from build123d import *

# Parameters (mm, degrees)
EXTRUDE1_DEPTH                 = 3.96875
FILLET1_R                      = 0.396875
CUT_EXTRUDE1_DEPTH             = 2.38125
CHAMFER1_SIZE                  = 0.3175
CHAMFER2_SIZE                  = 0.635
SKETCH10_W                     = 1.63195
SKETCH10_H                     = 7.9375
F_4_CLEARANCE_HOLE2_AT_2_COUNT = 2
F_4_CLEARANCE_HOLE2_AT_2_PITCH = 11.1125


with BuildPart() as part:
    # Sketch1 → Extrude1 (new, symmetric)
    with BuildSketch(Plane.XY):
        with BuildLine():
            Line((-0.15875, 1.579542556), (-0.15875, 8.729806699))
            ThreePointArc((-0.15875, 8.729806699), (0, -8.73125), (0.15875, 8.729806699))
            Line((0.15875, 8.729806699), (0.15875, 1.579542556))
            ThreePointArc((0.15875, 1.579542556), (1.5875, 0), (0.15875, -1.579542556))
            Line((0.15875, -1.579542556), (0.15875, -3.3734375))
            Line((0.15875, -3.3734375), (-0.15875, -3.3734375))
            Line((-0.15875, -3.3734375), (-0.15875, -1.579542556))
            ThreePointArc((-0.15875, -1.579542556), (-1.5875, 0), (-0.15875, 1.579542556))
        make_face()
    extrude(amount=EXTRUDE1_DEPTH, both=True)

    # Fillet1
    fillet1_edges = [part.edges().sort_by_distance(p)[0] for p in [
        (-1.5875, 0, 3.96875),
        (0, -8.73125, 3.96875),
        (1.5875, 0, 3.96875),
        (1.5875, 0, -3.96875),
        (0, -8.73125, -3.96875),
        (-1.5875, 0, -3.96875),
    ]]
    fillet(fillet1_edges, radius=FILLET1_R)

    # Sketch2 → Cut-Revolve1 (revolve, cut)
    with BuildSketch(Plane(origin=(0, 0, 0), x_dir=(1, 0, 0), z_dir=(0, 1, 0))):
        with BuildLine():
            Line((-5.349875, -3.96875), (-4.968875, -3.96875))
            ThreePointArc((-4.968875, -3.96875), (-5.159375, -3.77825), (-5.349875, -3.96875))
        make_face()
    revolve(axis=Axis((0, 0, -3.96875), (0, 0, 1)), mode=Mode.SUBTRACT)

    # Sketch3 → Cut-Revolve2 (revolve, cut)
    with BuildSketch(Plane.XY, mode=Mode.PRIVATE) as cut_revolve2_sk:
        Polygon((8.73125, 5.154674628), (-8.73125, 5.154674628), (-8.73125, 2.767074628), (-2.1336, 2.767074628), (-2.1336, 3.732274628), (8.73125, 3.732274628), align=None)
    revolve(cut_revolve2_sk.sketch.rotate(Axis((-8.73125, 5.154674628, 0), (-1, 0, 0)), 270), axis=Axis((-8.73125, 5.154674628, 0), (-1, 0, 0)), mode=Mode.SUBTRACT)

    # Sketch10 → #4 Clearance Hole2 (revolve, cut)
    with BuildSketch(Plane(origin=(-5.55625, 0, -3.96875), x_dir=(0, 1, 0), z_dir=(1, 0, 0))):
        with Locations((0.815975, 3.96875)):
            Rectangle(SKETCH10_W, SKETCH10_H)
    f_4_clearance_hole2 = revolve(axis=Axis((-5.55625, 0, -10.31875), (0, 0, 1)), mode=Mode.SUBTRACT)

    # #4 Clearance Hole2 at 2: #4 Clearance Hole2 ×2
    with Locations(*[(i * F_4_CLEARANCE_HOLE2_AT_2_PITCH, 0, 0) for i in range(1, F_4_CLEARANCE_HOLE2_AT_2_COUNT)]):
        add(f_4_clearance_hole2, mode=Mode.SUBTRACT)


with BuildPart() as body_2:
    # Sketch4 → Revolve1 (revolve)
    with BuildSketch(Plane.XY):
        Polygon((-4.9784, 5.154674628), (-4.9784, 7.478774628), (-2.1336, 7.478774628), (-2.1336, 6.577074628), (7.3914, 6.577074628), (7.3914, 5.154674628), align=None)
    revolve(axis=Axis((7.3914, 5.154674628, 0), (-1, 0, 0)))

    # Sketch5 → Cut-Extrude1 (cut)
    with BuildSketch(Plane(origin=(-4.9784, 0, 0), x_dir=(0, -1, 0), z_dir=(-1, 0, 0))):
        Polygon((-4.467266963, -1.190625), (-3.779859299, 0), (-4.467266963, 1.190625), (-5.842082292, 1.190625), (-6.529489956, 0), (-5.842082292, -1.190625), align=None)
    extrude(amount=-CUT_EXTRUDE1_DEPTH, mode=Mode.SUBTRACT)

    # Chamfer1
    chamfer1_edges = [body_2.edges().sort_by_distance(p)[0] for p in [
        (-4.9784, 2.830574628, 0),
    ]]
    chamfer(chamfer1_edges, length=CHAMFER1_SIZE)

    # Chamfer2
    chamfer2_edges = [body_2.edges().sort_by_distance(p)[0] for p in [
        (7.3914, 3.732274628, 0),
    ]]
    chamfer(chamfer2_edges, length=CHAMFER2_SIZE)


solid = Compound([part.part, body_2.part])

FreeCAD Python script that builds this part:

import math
import FreeCAD as App
import Part
import Sketcher
from FreeCAD import Vector
Q = App.Units.Quantity


def edges_at(feature, points):
    """Names of the edges that pass closest to the given points."""
    edges = feature.Shape.Edges
    near = lambda p: min(range(len(edges)), key=lambda i: edges[i].distToShape(Part.Vertex(*p))[0])
    return sorted({f"Edge{near(p) + 1}" for p in points})

doc = App.newDocument("Part")
body = doc.addObject("PartDesign::Body", "Body")

sketch1 = body.newObject("Sketcher::SketchObject", "Sketch")
sketch1.AttachmentSupport = (doc.getObject("XY_Plane"), [""])
sketch1.MapMode = "FlatFace"
sketch1.addGeometry([
    Part.LineSegment(Vector(-0.15875, 1.579543, 0), Vector(-0.15875, 8.729807, 0)),
    Part.ArcOfCircle(Part.Circle(Vector(0, 0, 0), Vector(0, 0, 1), 8.73125), math.radians(91.041799), math.radians(448.958201)),
    Part.LineSegment(Vector(0.15875, 8.729807, 0), Vector(0.15875, 1.579543, 0)),
    Part.ArcOfCircle(Part.Circle(Vector(0, 0, 0), Vector(0, 0, 1), 1.5875), math.radians(-84.26083), math.radians(84.26083)),
    Part.LineSegment(Vector(0.15875, -1.579543, 0), Vector(0.15875, -3.373438, 0)),
    Part.LineSegment(Vector(0.15875, -3.373438, 0), Vector(-0.15875, -3.373438, 0)),
    Part.LineSegment(Vector(-0.15875, -3.373438, 0), Vector(-0.15875, -1.579543, 0)),
    Part.ArcOfCircle(Part.Circle(Vector(0, 0, 0), Vector(0, 0, 1), 1.5875), math.radians(95.73917), math.radians(264.26083)),
], False)
sketch1.addConstraint([
    Sketcher.Constraint("Coincident", 0, 2, 1, 1),
    Sketcher.Constraint("Coincident", 1, 2, 2, 1),
    Sketcher.Constraint("Coincident", 2, 2, 3, 2),
    Sketcher.Constraint("Coincident", 3, 1, 4, 1),
    Sketcher.Constraint("Coincident", 4, 2, 5, 1),
    Sketcher.Constraint("Coincident", 5, 2, 6, 1),
    Sketcher.Constraint("Coincident", 6, 2, 7, 2),
    Sketcher.Constraint("Coincident", 7, 1, 0, 1),
    Sketcher.Constraint("Vertical", 0),
    Sketcher.Constraint("Vertical", 2),
    Sketcher.Constraint("Vertical", 4),
    Sketcher.Constraint("Horizontal", 5),
    Sketcher.Constraint("Vertical", 6),
    Sketcher.Constraint("Coincident", 1, 3, -1, 1),
    Sketcher.Constraint("Coincident", 3, 3, -1, 1),
    Sketcher.Constraint("Coincident", 7, 3, -1, 1),
    Sketcher.Constraint("Equal", 3, 7),
    Sketcher.Constraint("Horizontal", 0, 2, 1, 2),
    Sketcher.Constraint("Horizontal", 3, 1, 6, 2),
    Sketcher.Constraint("Vertical", 2, 2, 3, 1),
    Sketcher.Constraint("Radius", 1, Q("0.34375 in")),
    Sketcher.Constraint("Radius", 3, Q("0.0625 in")),
    Sketcher.Constraint("DistanceX", 5, 2, 5, 1, Q("0.0125 in")),
    Sketcher.Constraint("DistanceY", 4, 2, 4, 1, Q("1.793895 mm")),
])
pad1 = body.newObject("PartDesign::Pad", "Pad")
pad1.Profile = sketch1
pad1.Length = Q("0.3125 in")
pad1.Midplane = True
doc.recompute()

fillet = body.newObject("PartDesign::Fillet", "Fillet")
fillet.Base = (pad1, edges_at(pad1, [
    (-1.587, 0, 3.969),
    (0, -8.731, 3.969),
    (1.587, 0, 3.969),
    (1.587, 0, -3.969),
    (0, -8.731, -3.969),
    (-1.587, 0, -3.969),
]))
fillet.Radius = Q("0.015625 in")

sketch2 = body.newObject("Sketcher::SketchObject", "Sketch001")
sketch2.AttachmentSupport = (doc.getObject("XZ_Plane"), [""])
sketch2.MapMode = "FlatFace"
sketch2.addGeometry([
    Part.LineSegment(Vector(-5.349875, 3.96875, 0), Vector(-4.968875, 3.96875, 0)),
    Part.ArcOfCircle(Part.Circle(Vector(-5.159375, 3.96875, 0), Vector(0, 0, 1), 0.1905), math.radians(180), math.radians(360)),
], False)
sketch2.addConstraint([
    Sketcher.Constraint("Coincident", 0, 1, 1, 1),
    Sketcher.Constraint("Coincident", 1, 2, 0, 2),
    Sketcher.Constraint("Horizontal", 0),
    Sketcher.Constraint("Horizontal", 1, 3, 0, 1),
    Sketcher.Constraint("Radius", 1, Q("0.0075 in")),
    Sketcher.Constraint("DistanceX", 1, 3, -1, 1, Q("0.203125 in")),
    Sketcher.Constraint("DistanceY", -1, 1, 1, 3, Q("0.15625 in")),
])
groove = body.newObject("PartDesign::Groove", "Groove")
groove.Profile = sketch2
groove.ReferenceAxis = (sketch2, ["V_Axis"])
groove.Angle = 360

sketch3 = body.newObject("Sketcher::SketchObject", "Sketch002")
sketch3.AttachmentSupport = (doc.getObject("XY_Plane"), [""])
sketch3.MapMode = "FlatFace"
sketch3.addGeometry([
    Part.LineSegment(Vector(8.73125, 5.154675, 0), Vector(-8.73125, 5.154675, 0)),
    Part.LineSegment(Vector(-8.73125, 5.154675, 0), Vector(-8.73125, 2.767075, 0)),
    Part.LineSegment(Vector(-8.73125, 2.767075, 0), Vector(-2.1336, 2.767075, 0)),
    Part.LineSegment(Vector(-2.1336, 2.767075, 0), Vector(-2.1336, 3.732275, 0)),
    Part.LineSegment(Vector(-2.1336, 3.732275, 0), Vector(8.73125, 3.732275, 0)),
    Part.LineSegment(Vector(8.73125, 3.732275, 0), Vector(8.73125, 5.154675, 0)),
], False)
sketch3.addGeometry(Part.LineSegment(Vector(8.73125, 5.154675, 0), Vector(-8.73125, 5.154675, 0)), True)
sketch3.addConstraint([
    Sketcher.Constraint("Coincident", 0, 2, 1, 1),
    Sketcher.Constraint("Coincident", 1, 2, 2, 1),
    Sketcher.Constraint("Coincident", 2, 2, 3, 1),
    Sketcher.Constraint("Coincident", 3, 2, 4, 1),
    Sketcher.Constraint("Coincident", 4, 2, 5, 1),
    Sketcher.Constraint("Coincident", 5, 2, 0, 1),
    Sketcher.Constraint("Horizontal", 0),
    Sketcher.Constraint("Vertical", 1),
    Sketcher.Constraint("Horizontal", 2),
    Sketcher.Constraint("Vertical", 3),
    Sketcher.Constraint("Horizontal", 4),
    Sketcher.Constraint("Vertical", 5),
    Sketcher.Constraint("Horizontal", 6),
    Sketcher.Constraint("Coincident", 6, 1, 5, 2),
    Sketcher.Constraint("Vertical", 1, 2, 6, 2),
    Sketcher.Constraint("DistanceX", 0, 2, 0, 1, Q("0.6875 in")),
    Sketcher.Constraint("DistanceY", 1, 2, 1, 1, Q("0.094 in")),
    Sketcher.Constraint("DistanceY", 3, 1, 3, 2, Q("0.038 in")),
    Sketcher.Constraint("DistanceX", 0, 2, -1, 1, Q("0.34375 in")),
    Sketcher.Constraint("DistanceX", 2, 2, -1, 1, Q("0.084 in")),
    Sketcher.Constraint("DistanceY", -1, 1, 0, 2, Q("5.154675 mm")),
])
groove2 = body.newObject("PartDesign::Groove", "Groove001")
groove2.Profile = sketch3
groove2.ReferenceAxis = (sketch3, ["Axis0"])
groove2.Angle = 360

sketch4 = body.newObject("Sketcher::SketchObject", "Sketch003")
sketch4.AttachmentSupport = (doc.getObject("YZ_Plane"), [""])
sketch4.MapMode = "FlatFace"
sketch4.AttachmentOffset = App.Placement(Vector(0, 0, -0.21875 * 25.4), App.Rotation())
sketch4.addGeometry([
    Part.LineSegment(Vector(0, 3.96875, 0), Vector(0, -3.96875, 0)),
    Part.LineSegment(Vector(0, -3.96875, 0), Vector(1.63195, -3.96875, 0)),
    Part.LineSegment(Vector(1.63195, -3.96875, 0), Vector(1.63195, 3.96875, 0)),
    Part.LineSegment(Vector(1.63195, 3.96875, 0), Vector(0, 3.96875, 0)),
], False)
sketch4.addConstraint([
    Sketcher.Constraint("Coincident", 0, 2, 1, 1),
    Sketcher.Constraint("Coincident", 1, 2, 2, 1),
    Sketcher.Constraint("Coincident", 2, 2, 3, 1),
    Sketcher.Constraint("Coincident", 3, 2, 0, 1),
    Sketcher.Constraint("Vertical", 0),
    Sketcher.Constraint("Horizontal", 1),
    Sketcher.Constraint("Vertical", 2),
    Sketcher.Constraint("Horizontal", 3),
    Sketcher.Constraint("Symmetric", 0, 2, 3, 2, -1, 1),
    Sketcher.Constraint("DistanceY", 0, 2, 0, 1, Q("0.3125 in")),
    Sketcher.Constraint("DistanceX", 1, 1, 1, 2, Q("1.63195 mm")),
])
groove3 = body.newObject("PartDesign::Groove", "Groove002")
groove3.Profile = sketch4
groove3.ReferenceAxis = (sketch4, ["V_Axis"])
groove3.Angle = 360
doc.recompute()

linearpattern = body.newObject("PartDesign::LinearPattern", "LinearPattern")
linearpattern.Originals = [groove3]
linearpattern.Direction = (doc.getObject("X_Axis"), [""])
linearpattern.Mode = "offset"
linearpattern.Offset = Q("0.4375 in")
linearpattern.Occurrences = 2
body.Tip = linearpattern
body2 = doc.addObject("PartDesign::Body", "Body001")

sketch5 = body2.newObject("Sketcher::SketchObject", "Sketch004")
sketch5.AttachmentSupport = (doc.getObject("XY_Plane001"), [""])
sketch5.MapMode = "FlatFace"
sketch5.addGeometry([
    Part.LineSegment(Vector(-4.9784, 7.478775, 0), Vector(-4.9784, 5.154675, 0)),
    Part.LineSegment(Vector(-4.9784, 5.154675, 0), Vector(7.3914, 5.154675, 0)),
    Part.LineSegment(Vector(7.3914, 5.154675, 0), Vector(7.3914, 6.577075, 0)),
    Part.LineSegment(Vector(7.3914, 6.577075, 0), Vector(-2.1336, 6.577075, 0)),
    Part.LineSegment(Vector(-2.1336, 6.577075, 0), Vector(-2.1336, 7.478775, 0)),
    Part.LineSegment(Vector(-2.1336, 7.478775, 0), Vector(-4.9784, 7.478775, 0)),
], False)
sketch5.addGeometry(Part.LineSegment(Vector(7.3914, 5.154675, 0), Vector(-4.9784, 5.154675, 0)), True)
sketch5.addConstraint([
    Sketcher.Constraint("Coincident", 0, 2, 1, 1),
    Sketcher.Constraint("Coincident", 1, 2, 2, 1),
    Sketcher.Constraint("Coincident", 2, 2, 3, 1),
    Sketcher.Constraint("Coincident", 3, 2, 4, 1),
    Sketcher.Constraint("Coincident", 4, 2, 5, 1),
    Sketcher.Constraint("Coincident", 5, 2, 0, 1),
    Sketcher.Constraint("Vertical", 0),
    Sketcher.Constraint("Horizontal", 1),
    Sketcher.Constraint("Vertical", 2),
    Sketcher.Constraint("Horizontal", 3),
    Sketcher.Constraint("Vertical", 4),
    Sketcher.Constraint("Horizontal", 5),
    Sketcher.Constraint("Horizontal", 6),
    Sketcher.Constraint("Coincident", 6, 1, 1, 2),
    Sketcher.Constraint("Vertical", 5, 2, 6, 2),
    Sketcher.Constraint("DistanceX", 1, 1, 1, 2, Q("0.487 in")),
    Sketcher.Constraint("DistanceX", 3, 2, 3, 1, Q("0.375 in")),
    Sketcher.Constraint("DistanceY", 2, 1, 2, 2, Q("0.056 in")),
    Sketcher.Constraint("DistanceY", 0, 2, 0, 1, Q("0.0915 in")),
    Sketcher.Constraint("DistanceX", 0, 2, -1, 1, Q("0.196 in")),
    Sketcher.Constraint("DistanceY", -1, 1, 0, 2, Q("5.154675 mm")),
])
revolution = body2.newObject("PartDesign::Revolution", "Revolution")
revolution.Profile = sketch5
revolution.ReferenceAxis = (sketch5, ["Axis0"])
revolution.Angle = 360

sketch6 = body2.newObject("Sketcher::SketchObject", "Sketch005")
sketch6.AttachmentSupport = (doc.getObject("YZ_Plane001"), [""])
sketch6.MapMode = "FlatFace"
sketch6.AttachmentOffset = App.Placement(Vector(0, 0, -0.196 * 25.4), App.Rotation())
sketch6.addGeometry([
    Part.LineSegment(Vector(4.467267, -1.190625, 0), Vector(3.779859, 0, 0)),
    Part.LineSegment(Vector(3.779859, 0, 0), Vector(4.467267, 1.190625, 0)),
    Part.LineSegment(Vector(4.467267, 1.190625, 0), Vector(5.842082, 1.190625, 0)),
    Part.LineSegment(Vector(5.842082, 1.190625, 0), Vector(6.52949, 0, 0)),
    Part.LineSegment(Vector(6.52949, 0, 0), Vector(5.842082, -1.190625, 0)),
    Part.LineSegment(Vector(5.842082, -1.190625, 0), Vector(4.467267, -1.190625, 0)),
], False)
sketch6.addConstraint([
    Sketcher.Constraint("Coincident", 0, 2, 1, 1),
    Sketcher.Constraint("Coincident", 1, 2, 2, 1),
    Sketcher.Constraint("Coincident", 2, 2, 3, 1),
    Sketcher.Constraint("Coincident", 3, 2, 4, 1),
    Sketcher.Constraint("Coincident", 4, 2, 5, 1),
    Sketcher.Constraint("Coincident", 5, 2, 0, 1),
    Sketcher.Constraint("Horizontal", 2),
    Sketcher.Constraint("Horizontal", 5),
    Sketcher.Constraint("Symmetric", 2, 2, 4, 2, -1),
    Sketcher.Constraint("PointOnObject", 0, 2, -1),
    Sketcher.Constraint("PointOnObject", 3, 2, -1),
    Sketcher.Constraint("Parallel", 0, 3),
    Sketcher.Constraint("Parallel", 1, 4),
    Sketcher.Constraint("Angle", 0, Q("120 deg")),
    Sketcher.Constraint("DistanceY", -1, 1, 1, 2, Q("0.046875 in")),
    Sketcher.Constraint("DistanceX", 2, 1, 2, 2, Q("1.374815 mm")),
    Sketcher.Constraint("DistanceX", -1, 1, 0, 2, Q("3.779859 mm")),
])
pocket1 = body2.newObject("PartDesign::Pocket", "Pocket")
pocket1.Profile = sketch6
pocket1.Length = Q("0.09375 in")
pocket1.Reversed = True
doc.recompute()

chamfer = body2.newObject("PartDesign::Chamfer", "Chamfer")
chamfer.Base = (pocket1, edges_at(pocket1, [(-4.978, 2.831, 0)]))
chamfer.Size = Q("0.0125 in")
doc.recompute()

chamfer2 = body2.newObject("PartDesign::Chamfer", "Chamfer001")
chamfer2.Base = (chamfer, edges_at(chamfer, [(7.391, 3.732, 0)]))
chamfer2.Size = Q("0.025 in")

doc.recompute()
